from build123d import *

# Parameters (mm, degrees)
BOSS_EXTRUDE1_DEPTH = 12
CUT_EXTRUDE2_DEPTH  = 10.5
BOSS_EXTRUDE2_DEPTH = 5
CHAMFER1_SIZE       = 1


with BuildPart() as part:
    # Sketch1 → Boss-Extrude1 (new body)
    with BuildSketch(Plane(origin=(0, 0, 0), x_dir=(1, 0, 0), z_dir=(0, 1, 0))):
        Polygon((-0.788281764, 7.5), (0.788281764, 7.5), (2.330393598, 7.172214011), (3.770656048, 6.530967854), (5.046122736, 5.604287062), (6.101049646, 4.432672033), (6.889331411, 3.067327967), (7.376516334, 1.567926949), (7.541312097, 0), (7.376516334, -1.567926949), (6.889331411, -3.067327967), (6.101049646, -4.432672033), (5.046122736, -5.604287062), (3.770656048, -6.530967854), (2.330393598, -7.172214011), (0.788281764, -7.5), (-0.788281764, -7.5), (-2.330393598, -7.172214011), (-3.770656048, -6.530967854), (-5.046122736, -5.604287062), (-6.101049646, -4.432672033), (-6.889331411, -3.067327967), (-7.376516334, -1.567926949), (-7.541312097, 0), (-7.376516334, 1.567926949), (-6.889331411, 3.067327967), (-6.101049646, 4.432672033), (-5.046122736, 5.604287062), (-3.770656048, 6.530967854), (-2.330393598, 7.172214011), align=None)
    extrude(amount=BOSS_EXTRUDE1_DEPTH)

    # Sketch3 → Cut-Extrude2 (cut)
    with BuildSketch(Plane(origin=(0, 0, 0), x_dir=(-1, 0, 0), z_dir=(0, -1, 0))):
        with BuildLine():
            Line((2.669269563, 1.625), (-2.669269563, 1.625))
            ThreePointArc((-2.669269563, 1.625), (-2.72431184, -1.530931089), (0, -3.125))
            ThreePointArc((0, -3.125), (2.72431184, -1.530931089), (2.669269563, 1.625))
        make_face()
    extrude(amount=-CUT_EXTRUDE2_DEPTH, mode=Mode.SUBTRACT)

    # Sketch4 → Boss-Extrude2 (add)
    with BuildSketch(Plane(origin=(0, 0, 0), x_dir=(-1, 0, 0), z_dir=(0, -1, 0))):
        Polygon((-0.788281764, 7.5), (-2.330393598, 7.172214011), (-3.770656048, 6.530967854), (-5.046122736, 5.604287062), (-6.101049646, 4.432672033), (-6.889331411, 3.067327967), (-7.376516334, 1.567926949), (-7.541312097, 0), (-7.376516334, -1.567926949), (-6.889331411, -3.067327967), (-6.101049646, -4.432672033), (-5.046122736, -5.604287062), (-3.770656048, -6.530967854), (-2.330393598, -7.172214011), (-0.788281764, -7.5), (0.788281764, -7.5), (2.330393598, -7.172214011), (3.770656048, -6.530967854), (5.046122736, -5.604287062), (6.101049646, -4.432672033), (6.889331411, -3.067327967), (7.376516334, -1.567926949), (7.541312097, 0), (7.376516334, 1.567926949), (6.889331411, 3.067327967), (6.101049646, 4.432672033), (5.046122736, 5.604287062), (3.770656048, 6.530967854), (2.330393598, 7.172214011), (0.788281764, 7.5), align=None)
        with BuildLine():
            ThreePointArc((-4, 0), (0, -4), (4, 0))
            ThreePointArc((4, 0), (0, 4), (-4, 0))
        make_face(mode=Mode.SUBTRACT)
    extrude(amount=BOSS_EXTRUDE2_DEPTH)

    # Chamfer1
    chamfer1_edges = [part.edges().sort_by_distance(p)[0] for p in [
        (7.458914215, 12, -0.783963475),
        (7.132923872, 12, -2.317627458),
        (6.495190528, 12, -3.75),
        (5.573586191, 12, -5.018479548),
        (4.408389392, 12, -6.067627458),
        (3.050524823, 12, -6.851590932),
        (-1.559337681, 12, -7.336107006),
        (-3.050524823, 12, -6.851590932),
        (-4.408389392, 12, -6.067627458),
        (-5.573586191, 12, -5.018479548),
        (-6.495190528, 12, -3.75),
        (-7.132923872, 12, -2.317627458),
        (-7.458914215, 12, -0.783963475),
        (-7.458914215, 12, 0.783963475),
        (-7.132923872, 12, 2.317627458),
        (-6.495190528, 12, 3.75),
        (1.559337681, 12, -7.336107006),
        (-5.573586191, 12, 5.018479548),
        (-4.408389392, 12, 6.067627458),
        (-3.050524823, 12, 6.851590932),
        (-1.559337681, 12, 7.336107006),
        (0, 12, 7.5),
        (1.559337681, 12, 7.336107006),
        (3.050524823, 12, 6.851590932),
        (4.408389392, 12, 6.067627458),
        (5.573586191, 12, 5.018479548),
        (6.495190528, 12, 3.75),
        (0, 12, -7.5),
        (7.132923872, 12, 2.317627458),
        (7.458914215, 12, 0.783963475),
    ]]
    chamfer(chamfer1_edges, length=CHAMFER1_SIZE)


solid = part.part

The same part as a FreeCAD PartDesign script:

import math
import FreeCAD as App
import Part
import Sketcher
Q = App.Units.Quantity


def edges_at(feature, points):
    """Names of the edges that pass closest to the given points."""
    edges = feature.Shape.Edges
    near = lambda p: min(range(len(edges)), key=lambda i: edges[i].distToShape(Part.Vertex(*p))[0])
    return sorted({f"Edge{near(p) + 1}" for p in points})


def add_polygon(sketch, points):
    """Adds a closed chain of lines whose ends are joined by coincident constraints."""
    first, n = sketch.GeometryCount, len(points)
    for a, b in zip(points, points[1:] + points[:1]):
        sketch.addGeometry(Part.LineSegment(App.Vector(*a, 0), App.Vector(*b, 0)), False)
    for i in range(n):
        sketch.addConstraint(Sketcher.Constraint("Coincident", first + i, 2, first + (i + 1) % n, 1))

doc = App.newDocument("Part")
body = doc.addObject("PartDesign::Body", "Body")

sketch1 = body.newObject("Sketcher::SketchObject", "Sketch")
sketch1.AttachmentSupport = (doc.getObject("XZ_Plane"), [""])
sketch1.MapMode = "FlatFace"
add_polygon(sketch1, [(0.8, -7.5), (-0.8, -7.5), (-2.3, -7.2), (-3.8, -6.5), (-5, -5.6), (-6.1, -4.4), (-6.9, -3.1), (-7.4, -1.6), (-7.5, 0), (-7.4, 1.6), (-6.9, 3.1), (-6.1, 4.4), (-5, 5.6), (-3.8, 6.5), (-2.3, 7.2), (-0.8, 7.5), (0.8, 7.5), (2.3, 7.2), (3.8, 6.5), (5, 5.6), (6.1, 4.4), (6.9, 3.1), (7.4, 1.6), (7.5, 0), (7.4, -1.6), (6.9, -3.1), (6.1, -4.4), (5, -5.6), (3.8, -6.5), (2.3, -7.2)])
sketch1.addConstraint(Sketcher.Constraint("Horizontal", 0))
sketch1.addConstraint(Sketcher.Constraint("Horizontal", 15))
sketch1.addConstraint(Sketcher.Constraint("Symmetric", 0, 2, 15, 2, -1, 1))
sketch1.addConstraint(Sketcher.Constraint("Symmetric", 1, 2, 16, 2, -1, 1))
sketch1.addConstraint(Sketcher.Constraint("Symmetric", 2, 2, 17, 2, -1, 1))
sketch1.addConstraint(Sketcher.Constraint("Symmetric", 3, 2, 18, 2, -1, 1))
sketch1.addConstraint(Sketcher.Constraint("Symmetric", 4, 2, 19, 2, -1, 1))
sketch1.addConstraint(Sketcher.Constraint("Symmetric", 5, 2, 20, 2, -1, 1))
sketch1.addConstraint(Sketcher.Constraint("Symmetric", 6, 2, 21, 2, -1, 1))
sketch1.addConstraint(Sketcher.Constraint("Symmetric", 7, 2, 22, 2, -1, 1))
sketch1.addConstraint(Sketcher.Constraint("Symmetric", 8, 2, 23, 2, -1, 1))
sketch1.addConstraint(Sketcher.Constraint("Symmetric", 9, 2, 24, 2, -1, 1))
sketch1.addConstraint(Sketcher.Constraint("Symmetric", 10, 2, 25, 2, -1, 1))
sketch1.addConstraint(Sketcher.Constraint("Symmetric", 11, 2, 26, 2, -1, 1))
sketch1.addConstraint(Sketcher.Constraint("Symmetric", 12, 2, 27, 2, -1, 1))
sketch1.addConstraint(Sketcher.Constraint("Symmetric", 13, 2, 28, 2, -1, 1))
sketch1.addConstraint(Sketcher.Constraint("Symmetric", 13, 2, 16, 2, -2))
sketch1.addConstraint(Sketcher.Constraint("Symmetric", 12, 2, 17, 2, -2))
sketch1.addConstraint(Sketcher.Constraint("Symmetric", 11, 2, 18, 2, -2))
sketch1.addConstraint(Sketcher.Constraint("Symmetric", 10, 2, 19, 2, -2))
sketch1.addConstraint(Sketcher.Constraint("Symmetric", 9, 2, 20, 2, -2))
sketch1.addConstraint(Sketcher.Constraint("Symmetric", 8, 2, 21, 2, -2))
sketch1.addConstraint(Sketcher.Constraint("PointOnObject", 7, 2, -1))
sketch1.addConstraint(Sketcher.Constraint("Parallel", 14, 29))
sketch1.addConstraint(Sketcher.Constraint("Vertical", 0, 2, 14, 2))
sketch1.addConstraint(Sketcher.Constraint("Equal", 1, 2))
sketch1.addConstraint(Sketcher.Constraint("Equal", 2, 3))
sketch1.addConstraint(Sketcher.Constraint("Equal", 3, 4))
sketch1.addConstraint(Sketcher.Constraint("Equal", 4, 5))
sketch1.addConstraint(Sketcher.Constraint("Equal", 5, 6))
sketch1.addConstraint(Sketcher.Constraint("Equal", 6, 7))
sketch1.addConstraint(Sketcher.Constraint("Angle", 1, Q("168 deg")))
sketch1.addConstraint(Sketcher.Constraint("Angle", 2, Q("156 deg")))
sketch1.addConstraint(Sketcher.Constraint("Angle", 3, Q("144 deg")))
sketch1.addConstraint(Sketcher.Constraint("Angle", 4, Q("132 deg")))
sketch1.addConstraint(Sketcher.Constraint("Angle", 5, Q("120 deg")))
sketch1.addConstraint(Sketcher.Constraint("Angle", 6, Q("108 deg")))
sketch1.addConstraint(Sketcher.Constraint("Angle", 7, Q("96 deg")))
sketch1.addConstraint(Sketcher.Constraint("DistanceY", 0, 2, -1, 1, 7.5))
sketch1.addConstraint(Sketcher.Constraint("DistanceX", 0, 2, 0, 1, 1.576564))
pad1 = body.newObject("PartDesign::Pad", "Pad")
pad1.Profile = sketch1
pad1.Length = 12
pad1.Reversed = True

sketch2 = body.newObject("Sketcher::SketchObject", "Sketch001")
sketch2.AttachmentSupport = (doc.getObject("XZ_Plane"), [""])
sketch2.MapMode = "FlatFace"
sketch2.addGeometry(Part.LineSegment(App.Vector(-2.7, -1.6, 0), App.Vector(2.7, -1.6, 0)), False)
sketch2.addGeometry(Part.ArcOfCircle(Part.Circle(App.Vector(0, 0, 0), App.Vector(0, 0, 1), 3.1), math.radians(-31), math.radians(90)), False)
sketch2.addGeometry(Part.ArcOfCircle(Part.Circle(App.Vector(0, 0, 0), App.Vector(0, 0, 1), 3.1), math.radians(90), math.radians(211)), False)
sketch2.addConstraint(Sketcher.Constraint("Coincident", 0, 2, 1, 1))
sketch2.addConstraint(Sketcher.Constraint("Tangent", 1, 2, 2, 1))
sketch2.addConstraint(Sketcher.Constraint("Coincident", 2, 2, 0, 1))
sketch2.addConstraint(Sketcher.Constraint("Horizontal", 0))
sketch2.addConstraint(Sketcher.Constraint("Coincident", 1, 3, -1, 1))
sketch2.addConstraint(Sketcher.Constraint("Equal", 1, 2))
sketch2.addConstraint(Sketcher.Constraint("PointOnObject", 1, 2, -2))
sketch2.addConstraint(Sketcher.Constraint("Radius", 1, 3.125))
sketch2.addConstraint(Sketcher.Constraint("DistanceY", 0, 2, 1, 2, 4.75))
pocket1 = body.newObject("PartDesign::Pocket", "Pocket")
pocket1.Profile = sketch2
pocket1.Length = 10.5

sketch3 = body.newObject("Sketcher::SketchObject", "Sketch002")
sketch3.AttachmentSupport = (doc.getObject("XZ_Plane"), [""])
sketch3.MapMode = "FlatFace"
add_polygon(sketch3, [(0.8, -7.5), (2.3, -7.2), (3.8, -6.5), (5, -5.6), (6.1, -4.4), (6.9, -3.1), (7.4, -1.6), (7.5, 0), (7.4, 1.6), (6.9, 3.1), (6.1, 4.4), (5, 5.6), (3.8, 6.5), (2.3, 7.2), (0.8, 7.5), (-0.8, 7.5), (-2.3, 7.2), (-3.8, 6.5), (-5, 5.6), (-6.1, 4.4), (-6.9, 3.1), (-7.4, 1.6), (-7.5, 0), (-7.4, -1.6), (-6.9, -3.1), (-6.1, -4.4), (-5, -5.6), (-3.8, -6.5), (-2.3, -7.2), (-0.8, -7.5)])
sketch3.addGeometry(Part.Circle(App.Vector(0, 0, 0), App.Vector(0, 0, 1), 4), False)
sketch3.addConstraint(Sketcher.Constraint("Horizontal", 14))
sketch3.addConstraint(Sketcher.Constraint("Horizontal", 29))
sketch3.addConstraint(Sketcher.Constraint("Coincident", 30, 3, -1, 1))
sketch3.addConstraint(Sketcher.Constraint("Symmetric", 0, 2, 15, 2, -1, 1))
sketch3.addConstraint(Sketcher.Constraint("Symmetric", 1, 2, 16, 2, -1, 1))
sketch3.addConstraint(Sketcher.Constraint("Symmetric", 2, 2, 17, 2, -1, 1))
sketch3.addConstraint(Sketcher.Constraint("Symmetric", 3, 2, 18, 2, -1, 1))
sketch3.addConstraint(Sketcher.Constraint("Symmetric", 4, 2, 19, 2, -1, 1))
sketch3.addConstraint(Sketcher.Constraint("Symmetric", 5, 2, 20, 2, -1, 1))
sketch3.addConstraint(Sketcher.Constraint("Symmetric", 6, 2, 21, 2, -1, 1))
sketch3.addConstraint(Sketcher.Constraint("Symmetric", 7, 2, 22, 2, -1, 1))
sketch3.addConstraint(Sketcher.Constraint("Symmetric", 8, 2, 23, 2, -1, 1))
sketch3.addConstraint(Sketcher.Constraint("Symmetric", 9, 2, 24, 2, -1, 1))
sketch3.addConstraint(Sketcher.Constraint("Symmetric", 10, 2, 25, 2, -1, 1))
sketch3.addConstraint(Sketcher.Constraint("Symmetric", 11, 2, 26, 2, -1, 1))
sketch3.addConstraint(Sketcher.Constraint("Symmetric", 12, 2, 27, 2, -1, 1))
sketch3.addConstraint(Sketcher.Constraint("Symmetric", 13, 2, 28, 2, -1, 1))
sketch3.addConstraint(Sketcher.Constraint("Symmetric", 12, 2, 15, 2, -2))
sketch3.addConstraint(Sketcher.Constraint("Symmetric", 11, 2, 16, 2, -2))
sketch3.addConstraint(Sketcher.Constraint("Symmetric", 10, 2, 17, 2, -2))
sketch3.addConstraint(Sketcher.Constraint("Symmetric", 9, 2, 18, 2, -2))
sketch3.addConstraint(Sketcher.Constraint("Symmetric", 8, 2, 19, 2, -2))
sketch3.addConstraint(Sketcher.Constraint("Symmetric", 7, 2, 20, 2, -2))
sketch3.addConstraint(Sketcher.Constraint("PointOnObject", 6, 2, -1))
sketch3.addConstraint(Sketcher.Constraint("Parallel", 0, 15))
sketch3.addConstraint(Sketcher.Constraint("Vertical", 14, 2, 28, 2))
sketch3.addConstraint(Sketcher.Constraint("Equal", 0, 1))
sketch3.addConstraint(Sketcher.Constraint("Equal", 1, 2))
sketch3.addConstraint(Sketcher.Constraint("Equal", 2, 3))
sketch3.addConstraint(Sketcher.Constraint("Equal", 3, 4))
sketch3.addConstraint(Sketcher.Constraint("Equal", 4, 5))
sketch3.addConstraint(Sketcher.Constraint("Equal", 5, 6))
sketch3.addConstraint(Sketcher.Constraint("Diameter", 30, 8.0))
sketch3.addConstraint(Sketcher.Constraint("Angle", 0, Q("12 deg")))
sketch3.addConstraint(Sketcher.Constraint("Angle", 1, Q("24 deg")))
sketch3.addConstraint(Sketcher.Constraint("Angle", 2, Q("36 deg")))
sketch3.addConstraint(Sketcher.Constraint("Angle", 3, Q("48 deg")))
sketch3.addConstraint(Sketcher.Constraint("Angle", 4, Q("60 deg")))
sketch3.addConstraint(Sketcher.Constraint("Angle", 5, Q("72 deg")))
sketch3.addConstraint(Sketcher.Constraint("Angle", 6, Q("84 deg")))
sketch3.addConstraint(Sketcher.Constraint("DistanceY", -1, 1, 13, 2, 7.5))
sketch3.addConstraint(Sketcher.Constraint("DistanceX", 14, 2, 14, 1, 1.576564))
pad2 = body.newObject("PartDesign::Pad", "Pad001")
pad2.Profile = sketch3
pad2.Length = 5
doc.recompute()

chamfer = body.newObject("PartDesign::Chamfer", "Chamfer")
chamfer.Base = (pad2, edges_at(pad2, [
    (7.459, 12, -0.784),
    (7.133, 12, -2.318),
    (6.495, 12, -3.75),
    (5.574, 12, -5.018),
    (4.408, 12, -6.068),
    (3.051, 12, -6.852),
    (-1.559, 12, -7.336),
    (-3.051, 12, -6.852),
    (-4.408, 12, -6.068),
    (-5.574, 12, -5.018),
    (-6.495, 12, -3.75),
    (-7.133, 12, -2.318),
    (-7.459, 12, -0.784),
    (-7.459, 12, 0.784),
    (-7.133, 12, 2.318),
    (-6.495, 12, 3.75),
    (1.559, 12, -7.336),
    (-5.574, 12, 5.018),
    (-4.408, 12, 6.068),
    (-3.051, 12, 6.852),
    (-1.559, 12, 7.336),
    (0, 12, 7.5),
    (1.559, 12, 7.336),
    (3.051, 12, 6.852),
    (4.408, 12, 6.068),
    (5.574, 12, 5.018),
    (6.495, 12, 3.75),
    (0, 12, -7.5),
    (7.133, 12, 2.318),
    (7.459, 12, 0.784),
]))
chamfer.Size = 1

doc.recompute()
